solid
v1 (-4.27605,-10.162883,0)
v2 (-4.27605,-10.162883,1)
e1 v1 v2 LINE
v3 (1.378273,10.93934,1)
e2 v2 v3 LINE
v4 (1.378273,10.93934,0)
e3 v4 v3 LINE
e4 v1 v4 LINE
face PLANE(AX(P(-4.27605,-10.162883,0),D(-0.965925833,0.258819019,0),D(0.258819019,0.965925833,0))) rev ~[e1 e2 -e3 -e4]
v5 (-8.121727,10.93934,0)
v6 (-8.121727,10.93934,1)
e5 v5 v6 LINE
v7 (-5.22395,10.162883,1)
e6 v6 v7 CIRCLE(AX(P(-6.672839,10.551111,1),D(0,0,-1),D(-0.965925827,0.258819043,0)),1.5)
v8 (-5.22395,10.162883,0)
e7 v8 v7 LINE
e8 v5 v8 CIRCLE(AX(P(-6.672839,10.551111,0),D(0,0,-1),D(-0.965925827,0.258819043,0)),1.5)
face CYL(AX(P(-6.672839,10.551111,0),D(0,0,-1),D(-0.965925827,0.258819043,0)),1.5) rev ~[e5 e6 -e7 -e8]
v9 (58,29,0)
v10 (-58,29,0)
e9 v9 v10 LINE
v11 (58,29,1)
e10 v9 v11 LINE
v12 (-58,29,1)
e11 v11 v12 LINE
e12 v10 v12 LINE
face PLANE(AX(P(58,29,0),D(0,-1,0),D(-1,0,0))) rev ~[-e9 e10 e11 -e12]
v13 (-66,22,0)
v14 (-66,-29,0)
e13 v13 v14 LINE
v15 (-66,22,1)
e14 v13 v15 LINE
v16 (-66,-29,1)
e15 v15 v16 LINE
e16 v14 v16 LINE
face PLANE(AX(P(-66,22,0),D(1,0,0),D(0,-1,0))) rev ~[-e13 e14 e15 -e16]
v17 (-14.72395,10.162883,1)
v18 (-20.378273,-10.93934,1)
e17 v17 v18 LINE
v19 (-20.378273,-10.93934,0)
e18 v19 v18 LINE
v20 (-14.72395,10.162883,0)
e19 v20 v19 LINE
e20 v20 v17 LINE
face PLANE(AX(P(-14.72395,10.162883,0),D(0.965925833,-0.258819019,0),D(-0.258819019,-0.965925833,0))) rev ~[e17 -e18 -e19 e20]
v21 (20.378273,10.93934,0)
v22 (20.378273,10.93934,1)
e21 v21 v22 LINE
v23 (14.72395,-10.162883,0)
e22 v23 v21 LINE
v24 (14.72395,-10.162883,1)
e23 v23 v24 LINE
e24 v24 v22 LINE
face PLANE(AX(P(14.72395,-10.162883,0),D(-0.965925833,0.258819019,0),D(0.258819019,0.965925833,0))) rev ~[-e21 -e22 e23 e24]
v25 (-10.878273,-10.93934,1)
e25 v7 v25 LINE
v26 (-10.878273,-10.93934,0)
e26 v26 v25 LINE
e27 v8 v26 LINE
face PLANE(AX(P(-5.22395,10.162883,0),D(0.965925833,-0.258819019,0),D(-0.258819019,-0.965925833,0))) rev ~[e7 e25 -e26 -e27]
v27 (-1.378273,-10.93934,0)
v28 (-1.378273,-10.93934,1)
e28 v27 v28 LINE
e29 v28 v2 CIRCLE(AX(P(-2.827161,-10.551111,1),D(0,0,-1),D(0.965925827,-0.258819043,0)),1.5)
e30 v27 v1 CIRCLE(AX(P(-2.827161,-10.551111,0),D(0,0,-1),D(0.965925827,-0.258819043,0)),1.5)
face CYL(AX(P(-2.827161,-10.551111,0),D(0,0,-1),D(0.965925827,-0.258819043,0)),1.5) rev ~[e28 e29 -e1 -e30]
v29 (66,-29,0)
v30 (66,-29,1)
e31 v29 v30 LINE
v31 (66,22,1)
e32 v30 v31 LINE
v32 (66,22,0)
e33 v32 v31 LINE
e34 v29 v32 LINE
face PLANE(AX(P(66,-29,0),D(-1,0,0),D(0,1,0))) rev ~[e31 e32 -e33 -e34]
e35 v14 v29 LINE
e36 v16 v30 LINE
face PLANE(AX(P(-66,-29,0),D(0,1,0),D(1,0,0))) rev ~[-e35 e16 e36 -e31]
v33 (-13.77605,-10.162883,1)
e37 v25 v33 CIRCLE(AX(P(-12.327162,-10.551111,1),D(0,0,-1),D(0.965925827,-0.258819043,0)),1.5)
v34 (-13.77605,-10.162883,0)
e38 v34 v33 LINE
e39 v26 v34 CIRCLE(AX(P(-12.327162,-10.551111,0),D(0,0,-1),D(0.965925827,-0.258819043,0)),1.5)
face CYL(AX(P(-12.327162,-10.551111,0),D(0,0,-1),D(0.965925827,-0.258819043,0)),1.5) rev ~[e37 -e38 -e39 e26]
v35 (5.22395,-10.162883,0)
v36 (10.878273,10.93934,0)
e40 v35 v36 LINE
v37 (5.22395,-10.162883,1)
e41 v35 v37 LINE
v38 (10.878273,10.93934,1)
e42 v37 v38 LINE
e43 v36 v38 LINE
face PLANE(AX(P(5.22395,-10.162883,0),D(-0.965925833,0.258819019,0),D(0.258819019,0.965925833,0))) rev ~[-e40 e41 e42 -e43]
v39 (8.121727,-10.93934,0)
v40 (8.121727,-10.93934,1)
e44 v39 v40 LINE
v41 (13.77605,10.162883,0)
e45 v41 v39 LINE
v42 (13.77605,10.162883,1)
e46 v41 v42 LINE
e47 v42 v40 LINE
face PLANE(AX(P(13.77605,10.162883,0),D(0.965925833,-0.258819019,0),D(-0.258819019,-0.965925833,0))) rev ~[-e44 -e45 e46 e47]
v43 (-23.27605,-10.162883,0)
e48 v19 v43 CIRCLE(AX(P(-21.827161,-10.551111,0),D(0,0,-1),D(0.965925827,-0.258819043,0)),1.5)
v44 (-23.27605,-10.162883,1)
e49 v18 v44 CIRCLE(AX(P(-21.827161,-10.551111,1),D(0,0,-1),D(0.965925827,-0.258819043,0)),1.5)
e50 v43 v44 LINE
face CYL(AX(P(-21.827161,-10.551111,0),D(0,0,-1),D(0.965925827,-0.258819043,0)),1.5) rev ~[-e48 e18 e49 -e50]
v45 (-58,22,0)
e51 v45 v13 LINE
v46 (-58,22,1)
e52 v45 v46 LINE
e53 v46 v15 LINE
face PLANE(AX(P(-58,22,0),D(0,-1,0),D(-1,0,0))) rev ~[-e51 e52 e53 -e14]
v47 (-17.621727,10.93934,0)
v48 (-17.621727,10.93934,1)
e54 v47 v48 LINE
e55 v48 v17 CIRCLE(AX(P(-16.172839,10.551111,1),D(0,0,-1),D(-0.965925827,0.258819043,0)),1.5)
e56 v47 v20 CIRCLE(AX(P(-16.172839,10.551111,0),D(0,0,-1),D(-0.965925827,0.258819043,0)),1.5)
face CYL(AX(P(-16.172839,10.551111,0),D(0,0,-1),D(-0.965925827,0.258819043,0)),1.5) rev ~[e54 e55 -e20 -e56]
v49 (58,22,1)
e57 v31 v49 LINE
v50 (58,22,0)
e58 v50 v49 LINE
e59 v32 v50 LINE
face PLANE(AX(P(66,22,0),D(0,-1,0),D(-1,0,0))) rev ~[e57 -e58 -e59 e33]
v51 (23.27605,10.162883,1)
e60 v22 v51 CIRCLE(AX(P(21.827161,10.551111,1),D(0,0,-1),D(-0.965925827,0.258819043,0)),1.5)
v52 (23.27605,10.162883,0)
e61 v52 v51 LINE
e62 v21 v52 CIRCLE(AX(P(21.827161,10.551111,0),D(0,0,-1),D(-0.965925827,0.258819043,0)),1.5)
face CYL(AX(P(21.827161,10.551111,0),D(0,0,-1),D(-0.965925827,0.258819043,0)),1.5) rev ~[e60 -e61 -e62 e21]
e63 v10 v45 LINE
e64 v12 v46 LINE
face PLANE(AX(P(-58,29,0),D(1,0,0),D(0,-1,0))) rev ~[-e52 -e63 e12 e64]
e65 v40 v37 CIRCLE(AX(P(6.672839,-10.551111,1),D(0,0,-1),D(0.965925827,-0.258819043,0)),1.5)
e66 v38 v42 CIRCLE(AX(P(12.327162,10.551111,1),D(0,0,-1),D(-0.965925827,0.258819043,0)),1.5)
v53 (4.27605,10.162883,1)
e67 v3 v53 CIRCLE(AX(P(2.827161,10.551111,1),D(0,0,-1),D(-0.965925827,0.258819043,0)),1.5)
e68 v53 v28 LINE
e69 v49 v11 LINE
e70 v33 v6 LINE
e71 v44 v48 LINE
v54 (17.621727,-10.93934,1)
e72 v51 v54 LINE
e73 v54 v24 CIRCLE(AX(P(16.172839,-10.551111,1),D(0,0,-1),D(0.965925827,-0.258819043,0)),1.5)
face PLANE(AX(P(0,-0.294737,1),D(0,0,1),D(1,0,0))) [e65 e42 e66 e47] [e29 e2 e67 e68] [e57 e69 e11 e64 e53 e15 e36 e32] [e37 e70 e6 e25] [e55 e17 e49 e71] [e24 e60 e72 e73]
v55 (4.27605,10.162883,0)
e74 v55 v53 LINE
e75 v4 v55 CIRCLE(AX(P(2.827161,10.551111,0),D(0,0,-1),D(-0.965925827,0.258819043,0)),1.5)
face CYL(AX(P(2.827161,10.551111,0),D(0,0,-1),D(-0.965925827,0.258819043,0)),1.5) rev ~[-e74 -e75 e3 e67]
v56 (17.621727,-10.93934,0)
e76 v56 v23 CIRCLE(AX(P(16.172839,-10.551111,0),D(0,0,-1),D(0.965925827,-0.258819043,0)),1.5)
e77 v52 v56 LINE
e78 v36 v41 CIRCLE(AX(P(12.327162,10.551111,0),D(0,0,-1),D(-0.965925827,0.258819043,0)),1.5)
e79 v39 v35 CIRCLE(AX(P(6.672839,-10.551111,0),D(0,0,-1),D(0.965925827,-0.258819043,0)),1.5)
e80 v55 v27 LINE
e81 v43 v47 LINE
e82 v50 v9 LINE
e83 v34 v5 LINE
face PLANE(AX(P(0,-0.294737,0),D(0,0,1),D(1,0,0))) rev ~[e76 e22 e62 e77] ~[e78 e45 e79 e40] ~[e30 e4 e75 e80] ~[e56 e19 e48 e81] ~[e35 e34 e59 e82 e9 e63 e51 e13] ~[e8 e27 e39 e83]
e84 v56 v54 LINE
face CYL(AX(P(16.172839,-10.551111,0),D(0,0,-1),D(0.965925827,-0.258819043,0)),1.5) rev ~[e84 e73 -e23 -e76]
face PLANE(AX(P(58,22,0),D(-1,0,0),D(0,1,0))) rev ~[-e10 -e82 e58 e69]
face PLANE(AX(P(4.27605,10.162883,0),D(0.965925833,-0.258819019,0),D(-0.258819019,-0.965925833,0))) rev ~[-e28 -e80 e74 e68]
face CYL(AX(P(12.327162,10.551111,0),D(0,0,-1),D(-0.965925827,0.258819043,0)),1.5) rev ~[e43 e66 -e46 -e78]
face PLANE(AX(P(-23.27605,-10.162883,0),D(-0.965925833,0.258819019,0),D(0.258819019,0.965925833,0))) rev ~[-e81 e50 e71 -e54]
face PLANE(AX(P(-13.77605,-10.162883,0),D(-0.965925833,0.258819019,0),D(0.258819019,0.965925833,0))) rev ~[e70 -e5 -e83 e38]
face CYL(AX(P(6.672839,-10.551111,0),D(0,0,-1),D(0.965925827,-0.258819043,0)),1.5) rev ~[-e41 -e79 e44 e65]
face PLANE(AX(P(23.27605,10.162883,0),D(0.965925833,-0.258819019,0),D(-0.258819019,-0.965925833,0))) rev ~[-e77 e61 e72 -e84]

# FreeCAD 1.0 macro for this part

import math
import FreeCAD as App
import Part
import Sketcher

V = App.Vector
Q = App.Units.Quantity

doc = App.newDocument("Part")
body = doc.addObject("PartDesign::Body", "Body")

# Sketch on XY plane
sketch1 = doc.addObject("Sketcher::SketchObject", "Sketch")
body.addObject(sketch1)
sketch1.AttachmentSupport = (doc.XY_Plane, [""])
sketch1.MapMode = "FlatFace"
sketch1.addGeometry(Part.LineSegment(V(58, 22, 0), V(58, 29, 0)), False)
sketch1.addGeometry(Part.LineSegment(V(58, 29, 0), V(-58, 29, 0)), False)
sketch1.addGeometry(Part.LineSegment(V(-58, 29, 0), V(-58, 22, 0)), False)
sketch1.addGeometry(Part.LineSegment(V(-58, 22, 0), V(-66, 22, 0)), False)
sketch1.addGeometry(Part.LineSegment(V(-66, 22, 0), V(-66, -29, 0)), False)
sketch1.addGeometry(Part.LineSegment(V(-66, -29, 0), V(66, -29, 0)), False)
sketch1.addGeometry(Part.LineSegment(V(66, -29, 0), V(66, 22, 0)), False)
sketch1.addGeometry(Part.LineSegment(V(66, 22, 0), V(58, 22, 0)), False)
sketch1.addGeometry(Part.LineSegment(V(-14.7, 10.2, 0), V(-20.4, -10.9, 0)), False)
sketch1.addGeometry(Part.ArcOfCircle(Part.Circle(V(-21.8, -10.6, 0), V(0, 0, 1), 1.5), math.radians(165), math.radians(345)), False)
sketch1.addGeometry(Part.LineSegment(V(-23.3, -10.2, 0), V(-17.6, 10.9, 0)), False)
sketch1.addGeometry(Part.ArcOfCircle(Part.Circle(V(-16.2, 10.6, 0), V(0, 0, 1), 1.5), math.radians(-15), math.radians(165)), False)
sketch1.addGeometry(Part.LineSegment(V(-5.2, 10.2, 0), V(-10.9, -10.9, 0)), False)
sketch1.addGeometry(Part.ArcOfCircle(Part.Circle(V(-12.3, -10.6, 0), V(0, 0, 1), 1.5), math.radians(165), math.radians(345)), False)
sketch1.addGeometry(Part.LineSegment(V(-13.8, -10.2, 0), V(-8.1, 10.9, 0)), False)
sketch1.addGeometry(Part.ArcOfCircle(Part.Circle(V(-6.7, 10.6, 0), V(0, 0, 1), 1.5), math.radians(-15), math.radians(165)), False)
sketch1.addGeometry(Part.ArcOfCircle(Part.Circle(V(2.8, 10.6, 0), V(0, 0, 1), 1.5), math.radians(-15), math.radians(165)), False)
sketch1.addGeometry(Part.LineSegment(V(4.3, 10.2, 0), V(-1.4, -10.9, 0)), False)
sketch1.addGeometry(Part.ArcOfCircle(Part.Circle(V(-2.8, -10.6, 0), V(0, 0, 1), 1.5), math.radians(165), math.radians(345)), False)
sketch1.addGeometry(Part.LineSegment(V(-4.3, -10.2, 0), V(1.4, 10.9, 0)), False)
sketch1.addGeometry(Part.LineSegment(V(13.8, 10.2, 0), V(8.1, -10.9, 0)), False)
sketch1.addGeometry(Part.ArcOfCircle(Part.Circle(V(6.7, -10.6, 0), V(0, 0, 1), 1.5), math.radians(165), math.radians(345)), False)
sketch1.addGeometry(Part.LineSegment(V(5.2, -10.2, 0), V(10.9, 10.9, 0)), False)
sketch1.addGeometry(Part.ArcOfCircle(Part.Circle(V(12.3, 10.6, 0), V(0, 0, 1), 1.5), math.radians(-15), math.radians(165)), False)
sketch1.addGeometry(Part.LineSegment(V(23.3, 10.2, 0), V(17.6, -10.9, 0)), False)
sketch1.addGeometry(Part.ArcOfCircle(Part.Circle(V(16.2, -10.6, 0), V(0, 0, 1), 1.5), math.radians(165), math.radians(345)), False)
sketch1.addGeometry(Part.LineSegment(V(14.7, -10.2, 0), V(20.4, 10.9, 0)), False)
sketch1.addGeometry(Part.ArcOfCircle(Part.Circle(V(21.8, 10.6, 0), V(0, 0, 1), 1.5), math.radians(-15), math.radians(165)), False)
sketch1.addConstraint(Sketcher.Constraint("Coincident", 0, 2, 1, 1))
sketch1.addConstraint(Sketcher.Constraint("Coincident", 1, 2, 2, 1))
sketch1.addConstraint(Sketcher.Constraint("Coincident", 2, 2, 3, 1))
sketch1.addConstraint(Sketcher.Constraint("Coincident", 3, 2, 4, 1))
sketch1.addConstraint(Sketcher.Constraint("Coincident", 4, 2, 5, 1))
sketch1.addConstraint(Sketcher.Constraint("Coincident", 5, 2, 6, 1))
sketch1.addConstraint(Sketcher.Constraint("Coincident", 6, 2, 7, 1))
sketch1.addConstraint(Sketcher.Constraint("Coincident", 7, 2, 0, 1))
sketch1.addConstraint(Sketcher.Constraint("Tangent", 8, 2, 9, 2))
sketch1.addConstraint(Sketcher.Constraint("Tangent", 9, 1, 10, 1))
sketch1.addConstraint(Sketcher.Constraint("Tangent", 10, 2, 11, 2))
sketch1.addConstraint(Sketcher.Constraint("Tangent", 11, 1, 8, 1))
sketch1.addConstraint(Sketcher.Constraint("Tangent", 12, 2, 13, 2))
sketch1.addConstraint(Sketcher.Constraint("Tangent", 13, 1, 14, 1))
sketch1.addConstraint(Sketcher.Constraint("Tangent", 14, 2, 15, 2))
sketch1.addConstraint(Sketcher.Constraint("Tangent", 15, 1, 12, 1))
sketch1.addConstraint(Sketcher.Constraint("Tangent", 16, 1, 17, 1))
sketch1.addConstraint(Sketcher.Constraint("Tangent", 17, 2, 18, 2))
sketch1.addConstraint(Sketcher.Constraint("Tangent", 18, 1, 19, 1))
sketch1.addConstraint(Sketcher.Constraint("Tangent", 19, 2, 16, 2))
sketch1.addConstraint(Sketcher.Constraint("Tangent", 20, 2, 21, 2))
sketch1.addConstraint(Sketcher.Constraint("Tangent", 21, 1, 22, 1))
sketch1.addConstraint(Sketcher.Constraint("Tangent", 22, 2, 23, 2))
sketch1.addConstraint(Sketcher.Constraint("Tangent", 23, 1, 20, 1))
sketch1.addConstraint(Sketcher.Constraint("Tangent", 24, 2, 25, 2))
sketch1.addConstraint(Sketcher.Constraint("Tangent", 25, 1, 26, 1))
sketch1.addConstraint(Sketcher.Constraint("Tangent", 26, 2, 27, 2))
sketch1.addConstraint(Sketcher.Constraint("Tangent", 27, 1, 24, 1))
sketch1.addConstraint(Sketcher.Constraint("Vertical", 0))
sketch1.addConstraint(Sketcher.Constraint("Horizontal", 1))
sketch1.addConstraint(Sketcher.Constraint("Vertical", 2))
sketch1.addConstraint(Sketcher.Constraint("Horizontal", 3))
sketch1.addConstraint(Sketcher.Constraint("Vertical", 4))
sketch1.addConstraint(Sketcher.Constraint("Horizontal", 5))
sketch1.addConstraint(Sketcher.Constraint("Vertical", 6))
sketch1.addConstraint(Sketcher.Constraint("Horizontal", 7))
sketch1.addConstraint(Sketcher.Constraint("Equal", 9, 11))
sketch1.addConstraint(Sketcher.Constraint("Equal", 11, 13))
sketch1.addConstraint(Sketcher.Constraint("Equal", 13, 15))
sketch1.addConstraint(Sketcher.Constraint("Equal", 15, 16))
sketch1.addConstraint(Sketcher.Constraint("Equal", 16, 18))
sketch1.addConstraint(Sketcher.Constraint("Equal", 18, 21))
sketch1.addConstraint(Sketcher.Constraint("Equal", 21, 23))
sketch1.addConstraint(Sketcher.Constraint("Equal", 23, 25))
sketch1.addConstraint(Sketcher.Constraint("Equal", 25, 27))
sketch1.addConstraint(Sketcher.Constraint("Symmetric", 16, 3, 18, 3, -1, 1))
sketch1.addConstraint(Sketcher.Constraint("Symmetric", 15, 3, 21, 3, -1, 1))
sketch1.addConstraint(Sketcher.Constraint("Symmetric", 13, 3, 23, 3, -1, 1))
sketch1.addConstraint(Sketcher.Constraint("Symmetric", 11, 3, 25, 3, -1, 1))
sketch1.addConstraint(Sketcher.Constraint("Symmetric", 9, 3, 27, 3, -1, 1))
sketch1.addConstraint(Sketcher.Constraint("Symmetric", 3, 2, 6, 2, -2))
sketch1.addConstraint(Sketcher.Constraint("Parallel", 10, 12))
sketch1.addConstraint(Sketcher.Constraint("Parallel", 14, 17))
sketch1.addConstraint(Sketcher.Constraint("Horizontal", 9, 3, 13, 3))
sketch1.addConstraint(Sketcher.Constraint("Horizontal", 11, 3, 15, 3))
sketch1.addConstraint(Sketcher.Constraint("Horizontal", 15, 3, 16, 3))
sketch1.addConstraint(Sketcher.Constraint("Horizontal", 13, 3, 18, 3))
sketch1.addConstraint(Sketcher.Constraint("Equal", 3, 7))
sketch1.addConstraint(Sketcher.Constraint("Radius", 9, Q("1.5 mm")))
sketch1.addConstraint(Sketcher.Constraint("DistanceX", 1, 2, 1, 1, Q("116 mm")))
sketch1.addConstraint(Sketcher.Constraint("DistanceX", 3, 2, 3, 1, Q("8 mm")))
sketch1.addConstraint(Sketcher.Constraint("DistanceY", 0, 1, 0, 2, Q("7 mm")))
sketch1.addConstraint(Sketcher.Constraint("DistanceY", 4, 2, 4, 1, Q("51 mm")))
sketch1.addConstraint(Sketcher.Constraint("Angle", 8, Q("-104.999998 deg")))
sketch1.addConstraint(Sketcher.Constraint("DistanceY", -1, 1, 0, 2, Q("29 mm")))
sketch1.addConstraint(Sketcher.Constraint("DistanceX", 11, 3, 16, 3, Q("19 mm")))
sketch1.addConstraint(Sketcher.Constraint("DistanceX", 13, 3, 21, 3, Q("19 mm")))
sketch1.addConstraint(Sketcher.Constraint("Distance", 8, Q("21.846629 mm")))
pad1 = doc.addObject("PartDesign::Pad", "Pad")
body.addObject(pad1)
pad1.Profile = sketch1
pad1.Length = 1

doc.recompute()
